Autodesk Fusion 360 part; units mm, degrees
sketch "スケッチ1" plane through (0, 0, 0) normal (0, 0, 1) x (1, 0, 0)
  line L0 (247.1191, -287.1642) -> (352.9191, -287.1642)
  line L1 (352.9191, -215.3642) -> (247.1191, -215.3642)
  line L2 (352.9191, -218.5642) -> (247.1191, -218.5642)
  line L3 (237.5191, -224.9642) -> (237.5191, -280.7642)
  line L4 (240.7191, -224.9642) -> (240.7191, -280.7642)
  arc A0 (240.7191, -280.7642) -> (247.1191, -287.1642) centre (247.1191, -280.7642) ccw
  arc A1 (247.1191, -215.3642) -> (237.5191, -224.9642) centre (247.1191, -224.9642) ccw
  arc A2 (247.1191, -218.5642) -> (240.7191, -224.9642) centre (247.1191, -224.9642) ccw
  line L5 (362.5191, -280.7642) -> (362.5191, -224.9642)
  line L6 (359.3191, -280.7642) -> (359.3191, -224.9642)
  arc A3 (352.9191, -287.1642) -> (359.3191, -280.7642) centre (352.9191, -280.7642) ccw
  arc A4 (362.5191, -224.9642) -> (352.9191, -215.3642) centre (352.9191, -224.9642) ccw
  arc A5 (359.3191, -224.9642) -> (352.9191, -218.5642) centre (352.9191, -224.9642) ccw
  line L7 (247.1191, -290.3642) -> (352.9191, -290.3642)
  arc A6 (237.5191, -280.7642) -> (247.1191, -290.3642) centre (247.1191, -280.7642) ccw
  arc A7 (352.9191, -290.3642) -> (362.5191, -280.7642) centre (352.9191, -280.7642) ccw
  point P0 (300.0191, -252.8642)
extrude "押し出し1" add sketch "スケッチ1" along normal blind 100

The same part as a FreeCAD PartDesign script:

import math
import FreeCAD as App
import Part
import Sketcher

V = App.Vector
Q = App.Units.Quantity

doc = App.newDocument("Part")
body = doc.addObject("PartDesign::Body", "Body")

sketch1 = body.newObject("Sketcher::SketchObject", "Sketch")
sketch1.AttachmentSupport = (doc.getObject("XY_Plane"), [""])
sketch1.MapMode = "FlatFace"
sketch1.addGeometry(Part.ArcOfCircle(Part.Circle(V(353, -225, 0), V(0, 0, 1), 10), math.radians(0), math.radians(90)), False)
sketch1.addGeometry(Part.LineSegment(V(353, -215, 0), V(247, -215, 0)), False)
sketch1.addGeometry(Part.ArcOfCircle(Part.Circle(V(247, -225, 0), V(0, 0, 1), 10), math.radians(90), math.radians(180)), False)
sketch1.addGeometry(Part.LineSegment(V(238, -225, 0), V(238, -281, 0)), False)
sketch1.addGeometry(Part.ArcOfCircle(Part.Circle(V(247, -281, 0), V(0, 0, 1), 10), math.radians(180), math.radians(270)), False)
sketch1.addGeometry(Part.LineSegment(V(247, -290, 0), V(353, -290, 0)), False)
sketch1.addGeometry(Part.ArcOfCircle(Part.Circle(V(353, -281, 0), V(0, 0, 1), 10), math.radians(-90), math.radians(0)), False)
sketch1.addGeometry(Part.LineSegment(V(363, -281, 0), V(363, -225, 0)), False)
sketch1.addGeometry(Part.LineSegment(V(353, -287, 0), V(247, -287, 0)), False)
sketch1.addGeometry(Part.ArcOfCircle(Part.Circle(V(247, -281, 0), V(0, 0, 1), 6), math.radians(180), math.radians(270)), False)
sketch1.addGeometry(Part.LineSegment(V(241, -281, 0), V(241, -225, 0)), False)
sketch1.addGeometry(Part.ArcOfCircle(Part.Circle(V(247, -225, 0), V(0, 0, 1), 6), math.radians(90), math.radians(180)), False)
sketch1.addGeometry(Part.LineSegment(V(247, -219, 0), V(353, -219, 0)), False)
sketch1.addGeometry(Part.ArcOfCircle(Part.Circle(V(353, -225, 0), V(0, 0, 1), 6), math.radians(0), math.radians(90)), False)
sketch1.addGeometry(Part.LineSegment(V(359, -225, 0), V(359, -281, 0)), False)
sketch1.addGeometry(Part.ArcOfCircle(Part.Circle(V(353, -281, 0), V(0, 0, 1), 6), math.radians(-90), math.radians(0)), False)
sketch1.addConstraint(Sketcher.Constraint("Tangent", 0, 2, 1, 1))
sketch1.addConstraint(Sketcher.Constraint("Tangent", 1, 2, 2, 1))
sketch1.addConstraint(Sketcher.Constraint("Tangent", 2, 2, 3, 1))
sketch1.addConstraint(Sketcher.Constraint("Tangent", 3, 2, 4, 1))
sketch1.addConstraint(Sketcher.Constraint("Tangent", 4, 2, 5, 1))
sketch1.addConstraint(Sketcher.Constraint("Tangent", 5, 2, 6, 1))
sketch1.addConstraint(Sketcher.Constraint("Tangent", 6, 2, 7, 1))
sketch1.addConstraint(Sketcher.Constraint("Tangent", 7, 2, 0, 1))
sketch1.addConstraint(Sketcher.Constraint("Tangent", 8, 2, 9, 2))
sketch1.addConstraint(Sketcher.Constraint("Tangent", 9, 1, 10, 1))
sketch1.addConstraint(Sketcher.Constraint("Tangent", 10, 2, 11, 2))
sketch1.addConstraint(Sketcher.Constraint("Tangent", 11, 1, 12, 1))
sketch1.addConstraint(Sketcher.Constraint("Tangent", 12, 2, 13, 2))
sketch1.addConstraint(Sketcher.Constraint("Tangent", 13, 1, 14, 1))
sketch1.addConstraint(Sketcher.Constraint("Tangent", 14, 2, 15, 2))
sketch1.addConstraint(Sketcher.Constraint("Tangent", 15, 1, 8, 1))
sketch1.addConstraint(Sketcher.Constraint("Horizontal", 1))
sketch1.addConstraint(Sketcher.Constraint("Vertical", 3))
sketch1.addConstraint(Sketcher.Constraint("Horizontal", 5))
sketch1.addConstraint(Sketcher.Constraint("Vertical", 7))
sketch1.addConstraint(Sketcher.Constraint("Horizontal", 8))
sketch1.addConstraint(Sketcher.Constraint("Vertical", 10))
sketch1.addConstraint(Sketcher.Constraint("Horizontal", 12))
sketch1.addConstraint(Sketcher.Constraint("Vertical", 14))
sketch1.addConstraint(Sketcher.Constraint("Coincident", 9, 3, 4, 3))
sketch1.addConstraint(Sketcher.Constraint("Coincident", 11, 3, 2, 3))
sketch1.addConstraint(Sketcher.Constraint("Coincident", 13, 3, 0, 3))
sketch1.addConstraint(Sketcher.Constraint("Equal", 0, 2))
sketch1.addConstraint(Sketcher.Constraint("Equal", 2, 4))
sketch1.addConstraint(Sketcher.Constraint("Equal", 4, 6))
sketch1.addConstraint(Sketcher.Constraint("Equal", 13, 15))
sketch1.addConstraint(Sketcher.Constraint("Radius", 0, Q("9.6 mm")))
sketch1.addConstraint(Sketcher.Constraint("Radius", 9, Q("6.4 mm")))
sketch1.addConstraint(Sketcher.Constraint("DistanceX", 1, 2, 1, 1, Q("105.8 mm")))
sketch1.addConstraint(Sketcher.Constraint("DistanceY", 3, 2, 3, 1, Q("55.8 mm")))
sketch1.addConstraint(Sketcher.Constraint("DistanceX", -1, 1, 0, 3, Q("352.919 mm")))
sketch1.addConstraint(Sketcher.Constraint("DistanceY", 0, 3, -1, 1, Q("224.9642 mm")))
pad1 = body.newObject("PartDesign::Pad", "Pad")
pad1.Profile = sketch1
pad1.Length = 100

doc.recompute()
